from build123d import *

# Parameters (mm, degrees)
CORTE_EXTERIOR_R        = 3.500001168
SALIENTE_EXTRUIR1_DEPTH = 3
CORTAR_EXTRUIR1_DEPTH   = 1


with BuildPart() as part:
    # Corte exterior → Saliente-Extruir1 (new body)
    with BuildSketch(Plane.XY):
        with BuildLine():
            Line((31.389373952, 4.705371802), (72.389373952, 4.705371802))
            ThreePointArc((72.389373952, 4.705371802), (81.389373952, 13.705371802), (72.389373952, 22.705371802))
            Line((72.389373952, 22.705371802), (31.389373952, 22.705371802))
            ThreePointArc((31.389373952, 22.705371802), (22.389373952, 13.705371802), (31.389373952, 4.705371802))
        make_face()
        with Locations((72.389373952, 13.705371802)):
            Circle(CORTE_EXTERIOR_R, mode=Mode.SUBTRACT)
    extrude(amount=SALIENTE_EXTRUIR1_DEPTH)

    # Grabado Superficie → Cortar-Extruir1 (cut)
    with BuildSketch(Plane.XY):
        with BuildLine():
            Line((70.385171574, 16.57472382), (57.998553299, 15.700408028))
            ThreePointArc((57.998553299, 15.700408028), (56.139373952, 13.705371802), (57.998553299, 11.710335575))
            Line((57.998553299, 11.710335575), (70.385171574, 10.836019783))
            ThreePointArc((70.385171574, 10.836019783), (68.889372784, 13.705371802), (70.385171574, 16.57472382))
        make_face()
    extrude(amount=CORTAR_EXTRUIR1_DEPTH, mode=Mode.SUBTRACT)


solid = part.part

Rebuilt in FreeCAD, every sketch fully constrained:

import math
import FreeCAD as App
import Part
import Sketcher
from FreeCAD import Vector

doc = App.newDocument("Part")
params = doc.addObject("Spreadsheet::Sheet", "Params")
for row, (alias, value) in enumerate([
    ("sketch1_radius", "9 mm"),
    ("sketch1_width", "41 mm"),
    ("pad1_length", "3 mm"),
    ("sketch2_radius", "2 mm"),
    ("sketch2_radius2", "3.500001 mm"),
    ("pocket1_length", "1 mm"),
], start=1):
    params.set(f"A{row}", alias)
    params.set(f"B{row}", "=" + value)
    params.setAlias(f"B{row}", alias)

body = doc.addObject("PartDesign::Body", "Body")

# Sketch on XY plane
sketch1 = doc.addObject("Sketcher::SketchObject", "Sketch")
body.addObject(sketch1)
sketch1.AttachmentSupport = (doc.XY_Plane, [""])
sketch1.MapMode = "FlatFace"
sketch1.addGeometry([
    Part.LineSegment(Vector(31.389374, 4.705372, 0), Vector(72.389374, 4.705372, 0)),  # 0
    Part.ArcOfCircle(Part.Circle(Vector(72.389374, 13.705372, 0), Vector(0, 0, 1), 9), math.radians(-90), math.radians(90)),  # 1
    Part.LineSegment(Vector(72.389374, 22.705372, 0), Vector(31.389374, 22.705372, 0)),  # 2
    Part.ArcOfCircle(Part.Circle(Vector(31.389374, 13.705372, 0), Vector(0, 0, 1), 9), math.radians(90), math.radians(270)),  # 3
    Part.Circle(Vector(72.389374, 13.705372, 0), Vector(0, 0, 1), 3.500001),  # 4
], False)
sketch1.addConstraint([
    Sketcher.Constraint("Tangent", 0, 2, 1, 1),
    Sketcher.Constraint("Tangent", 1, 2, 2, 1),
    Sketcher.Constraint("Tangent", 2, 2, 3, 1),
    Sketcher.Constraint("Tangent", 3, 2, 0, 1),
    Sketcher.Constraint("Horizontal", 0),
    Sketcher.Constraint("Horizontal", 2),
    Sketcher.Constraint("Coincident", 4, 3, 1, 3),
    Sketcher.Constraint("Radius", 1, 9.0),
    Sketcher.Constraint("DistanceX", 0, 1, 0, 2, 41.0),
    Sketcher.Constraint("Diameter", 4, 7.000002),
    Sketcher.Constraint("DistanceY", -1, 1, 1, 3, 13.705372),
    Sketcher.Constraint("DistanceX", -1, 1, 1, 3, 72.389374),
])
sketch1.setExpression("Constraints[7]", "Params.sketch1_radius")
sketch1.setExpression("Constraints[8]", "Params.sketch1_width")
pad1 = doc.addObject("PartDesign::Pad", "Pad")
body.addObject(pad1)
pad1.Profile = sketch1
pad1.setExpression("Length", "Params.pad1_length")

# Sketch on XY plane
sketch2 = doc.addObject("Sketcher::SketchObject", "Sketch001")
body.addObject(sketch2)
sketch2.AttachmentSupport = (doc.XY_Plane, [""])
sketch2.MapMode = "FlatFace"
sketch2.addGeometry([
    Part.LineSegment(Vector(70.385172, 16.574724, 0), Vector(57.998553, 15.700408, 0)),
    Part.ArcOfCircle(Part.Circle(Vector(58.139374, 13.705372, 0), Vector(0, 0, 1), 2), math.radians(94.037555), math.radians(265.962445)),
    Part.LineSegment(Vector(57.998553, 11.710336, 0), Vector(70.385172, 10.83602, 0)),
    Part.ArcOfCircle(Part.Circle(Vector(72.389374, 13.705372, 0), Vector(0, 0, 1), 3.500001), math.radians(124.933762), math.radians(235.066238)),
], False)
sketch2.addConstraint([
    Sketcher.Constraint("Coincident", 0, 2, 1, 1),
    Sketcher.Constraint("Coincident", 1, 2, 2, 1),
    Sketcher.Constraint("Coincident", 2, 2, 3, 2),
    Sketcher.Constraint("Coincident", 3, 1, 0, 1),
    Sketcher.Constraint("Radius", 1, 2.0),
    Sketcher.Constraint("Radius", 3, 3.500001),
    Sketcher.Constraint("DistanceX", 1, 3, 3, 3, 14.25),
    Sketcher.Constraint("DistanceY", -1, 1, 1, 3, 13.705372),
    Sketcher.Constraint("DistanceY", -1, 1, 3, 3, 13.705372),
    Sketcher.Constraint("DistanceY", -1, 1, 0, 2, 15.700408),
    Sketcher.Constraint("DistanceX", -1, 1, 2, 2, 70.385172),
    Sketcher.Constraint("DistanceY", -1, 1, 2, 2, 10.83602),
    Sketcher.Constraint("DistanceX", -1, 1, 3, 1, 70.385172),
    Sketcher.Constraint("DistanceX", 1, 2, 1, 3, 0.140821),
])
sketch2.setExpression("Constraints[4]", "Params.sketch2_radius")
sketch2.setExpression("Constraints[5]", "Params.sketch2_radius2")
pocket1 = doc.addObject("PartDesign::Pocket", "Pocket")
body.addObject(pocket1)
pocket1.Profile = sketch2
pocket1.setExpression("Length", "Params.pocket1_length")
pocket1.Reversed = True

doc.recompute()
